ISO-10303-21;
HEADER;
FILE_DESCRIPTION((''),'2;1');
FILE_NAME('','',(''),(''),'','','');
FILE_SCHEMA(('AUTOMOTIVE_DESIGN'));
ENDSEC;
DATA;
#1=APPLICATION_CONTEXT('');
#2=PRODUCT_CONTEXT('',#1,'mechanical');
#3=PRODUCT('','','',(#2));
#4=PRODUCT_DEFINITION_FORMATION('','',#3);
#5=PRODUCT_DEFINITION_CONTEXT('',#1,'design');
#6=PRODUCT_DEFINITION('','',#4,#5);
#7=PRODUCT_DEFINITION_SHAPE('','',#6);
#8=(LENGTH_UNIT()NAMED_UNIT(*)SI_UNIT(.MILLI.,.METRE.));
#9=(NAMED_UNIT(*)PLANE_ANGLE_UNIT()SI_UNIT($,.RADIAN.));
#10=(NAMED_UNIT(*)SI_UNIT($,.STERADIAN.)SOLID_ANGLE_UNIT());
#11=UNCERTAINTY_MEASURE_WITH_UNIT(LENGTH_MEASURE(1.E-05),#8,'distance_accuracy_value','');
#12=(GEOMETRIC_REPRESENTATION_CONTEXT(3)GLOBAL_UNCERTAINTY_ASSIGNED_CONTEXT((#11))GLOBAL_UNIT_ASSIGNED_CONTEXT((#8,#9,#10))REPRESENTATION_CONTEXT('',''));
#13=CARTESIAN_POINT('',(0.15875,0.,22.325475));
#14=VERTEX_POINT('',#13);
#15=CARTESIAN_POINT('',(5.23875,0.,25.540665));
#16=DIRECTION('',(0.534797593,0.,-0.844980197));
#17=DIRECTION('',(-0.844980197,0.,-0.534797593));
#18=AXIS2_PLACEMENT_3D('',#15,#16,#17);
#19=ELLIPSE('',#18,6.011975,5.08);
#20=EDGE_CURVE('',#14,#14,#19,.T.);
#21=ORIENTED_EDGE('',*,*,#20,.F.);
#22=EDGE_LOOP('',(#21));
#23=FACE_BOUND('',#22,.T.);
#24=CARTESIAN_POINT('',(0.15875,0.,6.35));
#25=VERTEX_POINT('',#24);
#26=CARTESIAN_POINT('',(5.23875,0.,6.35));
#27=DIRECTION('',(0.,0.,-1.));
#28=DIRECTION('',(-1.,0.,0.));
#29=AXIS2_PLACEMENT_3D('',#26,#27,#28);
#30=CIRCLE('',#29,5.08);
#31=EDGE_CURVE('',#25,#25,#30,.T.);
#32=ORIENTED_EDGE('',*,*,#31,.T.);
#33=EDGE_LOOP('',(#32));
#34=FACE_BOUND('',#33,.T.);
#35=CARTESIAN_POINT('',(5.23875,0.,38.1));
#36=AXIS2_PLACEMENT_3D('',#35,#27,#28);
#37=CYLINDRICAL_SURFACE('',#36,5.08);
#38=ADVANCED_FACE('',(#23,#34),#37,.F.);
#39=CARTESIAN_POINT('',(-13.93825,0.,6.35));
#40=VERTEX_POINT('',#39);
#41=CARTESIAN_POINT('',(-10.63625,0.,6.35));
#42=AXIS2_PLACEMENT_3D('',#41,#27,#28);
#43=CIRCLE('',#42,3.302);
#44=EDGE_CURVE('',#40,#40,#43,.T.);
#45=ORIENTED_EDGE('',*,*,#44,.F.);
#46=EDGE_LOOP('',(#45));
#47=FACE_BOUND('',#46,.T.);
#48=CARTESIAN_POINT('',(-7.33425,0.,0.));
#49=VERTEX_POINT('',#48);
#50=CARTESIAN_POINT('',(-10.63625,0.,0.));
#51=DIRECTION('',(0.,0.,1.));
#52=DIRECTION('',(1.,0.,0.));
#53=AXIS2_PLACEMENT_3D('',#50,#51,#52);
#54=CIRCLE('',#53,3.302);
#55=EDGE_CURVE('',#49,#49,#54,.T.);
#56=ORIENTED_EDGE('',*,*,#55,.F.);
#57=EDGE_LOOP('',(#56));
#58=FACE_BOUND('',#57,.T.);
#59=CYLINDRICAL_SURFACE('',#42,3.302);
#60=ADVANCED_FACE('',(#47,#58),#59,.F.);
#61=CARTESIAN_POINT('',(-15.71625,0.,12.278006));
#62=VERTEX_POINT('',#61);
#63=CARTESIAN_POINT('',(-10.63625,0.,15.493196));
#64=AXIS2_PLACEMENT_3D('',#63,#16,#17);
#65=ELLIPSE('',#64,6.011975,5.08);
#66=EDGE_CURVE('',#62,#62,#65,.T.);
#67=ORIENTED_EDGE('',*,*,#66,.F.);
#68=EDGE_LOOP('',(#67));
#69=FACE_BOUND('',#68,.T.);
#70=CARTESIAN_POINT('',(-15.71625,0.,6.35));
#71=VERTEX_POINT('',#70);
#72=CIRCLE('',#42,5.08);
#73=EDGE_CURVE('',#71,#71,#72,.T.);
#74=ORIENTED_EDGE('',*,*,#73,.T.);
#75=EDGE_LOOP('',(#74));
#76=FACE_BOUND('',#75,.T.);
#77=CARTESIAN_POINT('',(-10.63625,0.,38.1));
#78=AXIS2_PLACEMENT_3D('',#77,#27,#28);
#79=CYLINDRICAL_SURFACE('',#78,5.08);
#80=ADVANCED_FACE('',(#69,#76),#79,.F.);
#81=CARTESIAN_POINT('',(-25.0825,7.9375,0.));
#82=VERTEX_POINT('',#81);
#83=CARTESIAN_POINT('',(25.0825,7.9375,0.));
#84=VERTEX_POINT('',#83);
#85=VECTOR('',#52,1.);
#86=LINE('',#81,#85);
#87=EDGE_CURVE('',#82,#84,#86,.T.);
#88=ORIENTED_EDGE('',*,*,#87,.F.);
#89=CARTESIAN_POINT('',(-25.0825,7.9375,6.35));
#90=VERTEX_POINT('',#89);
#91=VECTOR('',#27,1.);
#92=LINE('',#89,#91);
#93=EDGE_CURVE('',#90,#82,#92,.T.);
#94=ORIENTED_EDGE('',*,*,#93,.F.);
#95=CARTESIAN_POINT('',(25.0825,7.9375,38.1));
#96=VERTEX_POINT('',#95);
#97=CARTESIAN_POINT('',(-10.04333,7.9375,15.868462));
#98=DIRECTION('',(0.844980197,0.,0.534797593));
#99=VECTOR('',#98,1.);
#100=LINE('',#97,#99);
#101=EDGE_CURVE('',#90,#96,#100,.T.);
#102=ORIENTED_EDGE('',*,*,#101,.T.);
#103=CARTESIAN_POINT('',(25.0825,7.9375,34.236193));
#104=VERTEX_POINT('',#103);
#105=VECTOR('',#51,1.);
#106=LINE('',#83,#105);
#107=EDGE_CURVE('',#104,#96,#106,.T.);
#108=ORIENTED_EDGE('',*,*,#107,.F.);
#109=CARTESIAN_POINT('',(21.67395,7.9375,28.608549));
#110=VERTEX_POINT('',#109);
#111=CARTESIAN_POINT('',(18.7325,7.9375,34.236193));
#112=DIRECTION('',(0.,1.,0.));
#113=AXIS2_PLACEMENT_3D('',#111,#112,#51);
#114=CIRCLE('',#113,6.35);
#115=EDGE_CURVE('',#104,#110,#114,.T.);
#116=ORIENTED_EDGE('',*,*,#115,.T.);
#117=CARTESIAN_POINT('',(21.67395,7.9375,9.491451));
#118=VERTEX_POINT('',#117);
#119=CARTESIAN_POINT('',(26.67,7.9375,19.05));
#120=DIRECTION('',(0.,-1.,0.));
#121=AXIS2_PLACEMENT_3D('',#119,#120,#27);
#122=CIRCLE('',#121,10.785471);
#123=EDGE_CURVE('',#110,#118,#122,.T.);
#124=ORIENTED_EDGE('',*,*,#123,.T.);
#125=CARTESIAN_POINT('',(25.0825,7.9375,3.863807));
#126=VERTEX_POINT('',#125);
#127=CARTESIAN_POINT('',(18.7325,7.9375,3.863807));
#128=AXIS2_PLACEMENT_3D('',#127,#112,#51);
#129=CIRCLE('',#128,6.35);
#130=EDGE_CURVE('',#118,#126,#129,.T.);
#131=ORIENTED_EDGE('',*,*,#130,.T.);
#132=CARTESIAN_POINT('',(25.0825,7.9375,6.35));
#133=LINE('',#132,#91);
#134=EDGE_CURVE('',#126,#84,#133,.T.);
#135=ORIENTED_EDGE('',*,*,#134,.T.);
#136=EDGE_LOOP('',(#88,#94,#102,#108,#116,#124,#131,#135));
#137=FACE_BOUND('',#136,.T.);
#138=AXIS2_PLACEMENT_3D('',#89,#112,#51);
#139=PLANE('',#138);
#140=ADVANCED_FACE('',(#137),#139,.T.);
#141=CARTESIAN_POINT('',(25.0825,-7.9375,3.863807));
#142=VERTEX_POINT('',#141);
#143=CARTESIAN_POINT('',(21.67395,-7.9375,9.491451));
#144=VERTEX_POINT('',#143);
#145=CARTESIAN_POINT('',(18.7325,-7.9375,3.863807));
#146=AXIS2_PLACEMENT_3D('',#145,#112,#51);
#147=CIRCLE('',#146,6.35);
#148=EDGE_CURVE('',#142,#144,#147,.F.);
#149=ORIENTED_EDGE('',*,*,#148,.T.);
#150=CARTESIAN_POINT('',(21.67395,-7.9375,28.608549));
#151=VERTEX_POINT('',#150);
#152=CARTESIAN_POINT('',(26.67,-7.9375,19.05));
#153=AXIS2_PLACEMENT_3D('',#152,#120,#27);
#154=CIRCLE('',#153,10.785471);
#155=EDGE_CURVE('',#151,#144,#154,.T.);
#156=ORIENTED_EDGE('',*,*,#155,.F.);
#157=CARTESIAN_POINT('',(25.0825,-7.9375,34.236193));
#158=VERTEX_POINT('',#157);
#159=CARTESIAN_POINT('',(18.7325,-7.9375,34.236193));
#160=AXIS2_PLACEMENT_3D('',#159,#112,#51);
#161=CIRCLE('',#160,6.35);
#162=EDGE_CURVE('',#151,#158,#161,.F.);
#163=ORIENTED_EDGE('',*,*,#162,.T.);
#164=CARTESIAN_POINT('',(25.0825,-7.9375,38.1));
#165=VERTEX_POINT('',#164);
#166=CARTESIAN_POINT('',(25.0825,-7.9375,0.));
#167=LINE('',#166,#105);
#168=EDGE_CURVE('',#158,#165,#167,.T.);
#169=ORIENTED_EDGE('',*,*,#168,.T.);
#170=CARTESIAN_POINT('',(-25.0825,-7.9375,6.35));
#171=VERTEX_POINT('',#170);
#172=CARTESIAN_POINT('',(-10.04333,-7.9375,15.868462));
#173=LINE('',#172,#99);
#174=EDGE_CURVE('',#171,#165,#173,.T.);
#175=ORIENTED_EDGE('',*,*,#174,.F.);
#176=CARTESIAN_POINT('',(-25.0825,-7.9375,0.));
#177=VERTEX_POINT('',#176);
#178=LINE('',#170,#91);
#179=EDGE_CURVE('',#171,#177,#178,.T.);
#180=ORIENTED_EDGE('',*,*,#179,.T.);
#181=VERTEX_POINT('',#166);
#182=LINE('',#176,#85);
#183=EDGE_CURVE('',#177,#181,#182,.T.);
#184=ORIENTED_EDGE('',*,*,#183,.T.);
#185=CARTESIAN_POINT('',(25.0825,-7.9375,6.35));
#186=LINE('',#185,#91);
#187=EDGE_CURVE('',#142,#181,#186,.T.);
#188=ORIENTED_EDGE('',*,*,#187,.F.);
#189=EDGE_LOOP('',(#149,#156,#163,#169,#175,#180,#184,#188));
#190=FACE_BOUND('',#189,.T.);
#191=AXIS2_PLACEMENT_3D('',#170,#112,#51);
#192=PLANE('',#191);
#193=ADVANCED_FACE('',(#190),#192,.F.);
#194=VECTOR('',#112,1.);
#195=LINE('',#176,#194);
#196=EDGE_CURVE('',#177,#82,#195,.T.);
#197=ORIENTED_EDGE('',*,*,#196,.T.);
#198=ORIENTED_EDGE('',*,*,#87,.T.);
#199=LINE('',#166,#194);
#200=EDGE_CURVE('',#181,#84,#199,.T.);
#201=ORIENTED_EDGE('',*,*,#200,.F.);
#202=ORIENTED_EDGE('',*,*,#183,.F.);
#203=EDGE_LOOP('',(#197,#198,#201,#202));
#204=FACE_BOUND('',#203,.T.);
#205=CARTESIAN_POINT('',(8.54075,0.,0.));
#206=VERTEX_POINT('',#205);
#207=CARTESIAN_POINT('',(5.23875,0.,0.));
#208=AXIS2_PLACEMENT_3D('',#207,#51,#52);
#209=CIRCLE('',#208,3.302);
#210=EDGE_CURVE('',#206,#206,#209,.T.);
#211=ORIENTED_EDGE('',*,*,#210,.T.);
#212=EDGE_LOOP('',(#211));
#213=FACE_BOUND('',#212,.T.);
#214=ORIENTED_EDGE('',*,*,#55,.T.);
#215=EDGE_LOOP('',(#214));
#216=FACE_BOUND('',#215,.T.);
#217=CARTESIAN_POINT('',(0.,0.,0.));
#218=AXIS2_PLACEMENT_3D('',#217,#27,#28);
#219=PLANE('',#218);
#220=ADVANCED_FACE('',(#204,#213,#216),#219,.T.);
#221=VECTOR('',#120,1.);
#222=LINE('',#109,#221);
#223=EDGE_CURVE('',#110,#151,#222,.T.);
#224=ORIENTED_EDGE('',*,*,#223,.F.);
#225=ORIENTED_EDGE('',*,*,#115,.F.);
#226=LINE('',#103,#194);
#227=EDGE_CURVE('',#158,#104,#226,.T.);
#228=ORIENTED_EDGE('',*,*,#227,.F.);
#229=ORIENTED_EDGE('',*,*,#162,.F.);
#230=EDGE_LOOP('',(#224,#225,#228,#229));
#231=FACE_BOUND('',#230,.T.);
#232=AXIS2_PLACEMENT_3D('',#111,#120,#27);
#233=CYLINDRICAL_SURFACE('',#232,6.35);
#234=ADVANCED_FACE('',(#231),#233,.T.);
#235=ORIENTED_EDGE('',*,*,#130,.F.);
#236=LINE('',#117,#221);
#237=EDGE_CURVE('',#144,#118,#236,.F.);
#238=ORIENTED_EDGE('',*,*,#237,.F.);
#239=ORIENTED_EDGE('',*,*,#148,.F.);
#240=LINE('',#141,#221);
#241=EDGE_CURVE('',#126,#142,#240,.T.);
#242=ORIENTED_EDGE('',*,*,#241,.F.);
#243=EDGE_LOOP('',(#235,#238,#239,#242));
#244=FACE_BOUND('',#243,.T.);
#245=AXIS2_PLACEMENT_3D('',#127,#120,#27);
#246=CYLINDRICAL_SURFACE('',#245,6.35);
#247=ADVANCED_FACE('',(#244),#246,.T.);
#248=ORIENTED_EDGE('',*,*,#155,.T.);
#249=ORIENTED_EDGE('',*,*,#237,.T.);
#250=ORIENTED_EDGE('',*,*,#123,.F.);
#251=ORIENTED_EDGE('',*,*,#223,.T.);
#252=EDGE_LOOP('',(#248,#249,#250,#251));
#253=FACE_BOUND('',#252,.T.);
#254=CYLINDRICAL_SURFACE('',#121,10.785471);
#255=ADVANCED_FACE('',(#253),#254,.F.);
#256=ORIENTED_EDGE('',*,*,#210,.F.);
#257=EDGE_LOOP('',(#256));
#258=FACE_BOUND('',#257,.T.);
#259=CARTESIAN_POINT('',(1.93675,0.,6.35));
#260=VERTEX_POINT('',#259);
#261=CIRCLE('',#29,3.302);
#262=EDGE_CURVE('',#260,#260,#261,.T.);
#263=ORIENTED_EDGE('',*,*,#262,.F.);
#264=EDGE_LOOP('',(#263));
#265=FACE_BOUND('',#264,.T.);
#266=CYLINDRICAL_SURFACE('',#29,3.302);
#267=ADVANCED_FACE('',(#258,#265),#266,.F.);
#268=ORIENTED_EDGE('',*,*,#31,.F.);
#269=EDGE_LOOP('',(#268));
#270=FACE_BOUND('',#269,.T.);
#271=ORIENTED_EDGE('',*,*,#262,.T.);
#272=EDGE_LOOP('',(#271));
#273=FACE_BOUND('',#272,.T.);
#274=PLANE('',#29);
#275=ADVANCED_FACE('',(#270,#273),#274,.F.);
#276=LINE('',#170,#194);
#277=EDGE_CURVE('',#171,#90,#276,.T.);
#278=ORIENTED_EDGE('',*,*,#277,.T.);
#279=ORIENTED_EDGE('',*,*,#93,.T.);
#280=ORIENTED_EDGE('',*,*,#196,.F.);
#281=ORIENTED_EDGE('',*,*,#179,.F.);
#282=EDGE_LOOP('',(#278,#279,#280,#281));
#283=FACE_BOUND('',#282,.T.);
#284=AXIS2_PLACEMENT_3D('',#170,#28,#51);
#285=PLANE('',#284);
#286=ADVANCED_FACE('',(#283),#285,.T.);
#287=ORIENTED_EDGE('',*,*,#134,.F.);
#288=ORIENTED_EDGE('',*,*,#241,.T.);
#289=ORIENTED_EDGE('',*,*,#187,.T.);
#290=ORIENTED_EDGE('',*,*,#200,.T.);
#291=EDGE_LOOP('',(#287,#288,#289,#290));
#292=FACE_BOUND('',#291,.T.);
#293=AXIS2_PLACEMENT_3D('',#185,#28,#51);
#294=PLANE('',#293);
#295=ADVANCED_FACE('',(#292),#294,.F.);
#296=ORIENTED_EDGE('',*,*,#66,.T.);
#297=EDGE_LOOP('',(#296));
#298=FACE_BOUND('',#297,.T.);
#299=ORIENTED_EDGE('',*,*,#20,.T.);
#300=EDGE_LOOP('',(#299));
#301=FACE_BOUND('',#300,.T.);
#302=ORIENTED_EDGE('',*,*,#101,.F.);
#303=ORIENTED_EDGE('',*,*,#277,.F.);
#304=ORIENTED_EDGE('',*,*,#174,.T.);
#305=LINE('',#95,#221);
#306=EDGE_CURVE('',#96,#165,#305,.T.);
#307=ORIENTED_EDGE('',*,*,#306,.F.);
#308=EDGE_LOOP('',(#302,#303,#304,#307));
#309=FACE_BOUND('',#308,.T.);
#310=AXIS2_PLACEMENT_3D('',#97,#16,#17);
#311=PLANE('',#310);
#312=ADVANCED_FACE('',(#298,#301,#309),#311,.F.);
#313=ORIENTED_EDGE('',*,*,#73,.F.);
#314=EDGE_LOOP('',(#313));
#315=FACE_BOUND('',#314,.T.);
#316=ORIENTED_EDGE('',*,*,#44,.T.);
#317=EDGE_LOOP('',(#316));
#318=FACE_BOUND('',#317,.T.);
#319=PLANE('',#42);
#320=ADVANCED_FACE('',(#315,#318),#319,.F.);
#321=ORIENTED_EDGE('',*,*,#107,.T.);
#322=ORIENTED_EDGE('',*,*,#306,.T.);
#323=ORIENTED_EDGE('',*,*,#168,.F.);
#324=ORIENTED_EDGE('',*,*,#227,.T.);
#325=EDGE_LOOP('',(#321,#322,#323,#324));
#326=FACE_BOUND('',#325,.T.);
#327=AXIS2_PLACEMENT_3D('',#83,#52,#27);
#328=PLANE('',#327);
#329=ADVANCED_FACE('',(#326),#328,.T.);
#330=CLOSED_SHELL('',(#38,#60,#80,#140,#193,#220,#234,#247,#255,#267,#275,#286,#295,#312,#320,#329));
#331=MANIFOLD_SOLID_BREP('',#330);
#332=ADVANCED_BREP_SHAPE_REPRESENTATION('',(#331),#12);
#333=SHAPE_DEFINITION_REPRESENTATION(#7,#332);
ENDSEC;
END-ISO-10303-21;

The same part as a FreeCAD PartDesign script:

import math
import FreeCAD as App
import Part
import Sketcher
from FreeCAD import Vector
Q = App.Units.Quantity


def edges_at(feature, points):
    """Names of the edges that pass closest to the given points."""
    edges = feature.Shape.Edges
    near = lambda p: min(range(len(edges)), key=lambda i: edges[i].distToShape(Part.Vertex(*p))[0])
    return sorted({f"Edge{near(p) + 1}" for p in points})


def add_polygon(sketch, points):
    """Adds a closed chain of lines whose ends are joined by coincident constraints."""
    first, n = sketch.GeometryCount, len(points)
    for a, b in zip(points, points[1:] + points[:1]):
        sketch.addGeometry(Part.LineSegment(App.Vector(*a, 0), App.Vector(*b, 0)), False)
    for i in range(n):
        sketch.addConstraint(Sketcher.Constraint("Coincident", first + i, 2, first + (i + 1) % n, 1))

doc = App.newDocument("Part")
body = doc.addObject("PartDesign::Body", "Body")

# Sketch on XY plane
sketch1 = body.newObject("Sketcher::SketchObject", "Sketch")
sketch1.AttachmentSupport = (doc.getObject("XY_Plane"), [""])
sketch1.MapMode = "FlatFace"
add_polygon(sketch1, [(-25.0825, 7.9375), (-25.0825, -7.9375), (25.0825, -7.9375), (25.0825, 7.9375)])  # lines 0-3
sketch1.addGeometry(Part.Circle(Vector(-10.63625, 0, 0), Vector(0, 0, 1), 3.302), False)  # 4
sketch1.addGeometry(Part.Circle(Vector(5.23875, 0, 0), Vector(0, 0, 1), 3.302), False)  # 5
sketch1.addConstraint([
    Sketcher.Constraint("Vertical", 0),
    Sketcher.Constraint("Horizontal", 1),
    Sketcher.Constraint("Vertical", 2),
    Sketcher.Constraint("Horizontal", 3),
    Sketcher.Constraint("Equal", 4, 5),
    Sketcher.Constraint("Symmetric", 0, 2, 2, 2, -1, 1),
    Sketcher.Constraint("PointOnObject", 4, 3, -1),
    Sketcher.Constraint("PointOnObject", 5, 3, -1),
    Sketcher.Constraint("Diameter", 4, Q("0.26 in")),
    Sketcher.Constraint("DistanceX", 1, 1, 1, 2, Q("1.975 in")),
    Sketcher.Constraint("DistanceY", 0, 2, 0, 1, Q("0.625 in")),
    Sketcher.Constraint("DistanceX", 4, 3, 5, 3, Q("0.625 in")),
    Sketcher.Constraint("DistanceX", 5, 3, 1, 2, Q("0.78125 in")),
])
pad1 = body.newObject("PartDesign::Pad", "Pad")
pad1.Profile = sketch1
pad1.Length = Q("0.25 in")

# Sketch on XZ plane
sketch2 = body.newObject("Sketcher::SketchObject", "Sketch001")
sketch2.AttachmentSupport = (doc.getObject("XZ_Plane"), [""])
sketch2.MapMode = "FlatFace"
sketch2.AttachmentOffset = App.Placement(Vector(0, 0, 0.3125 * 25.4), App.Rotation())
sketch2.addGeometry([
    Part.LineSegment(Vector(-25.0825, 6.35, 0), Vector(25.0825, 6.35, 0)),  # 0
    Part.LineSegment(Vector(25.0825, 6.35, 0), Vector(25.0825, 8.382, 0)),  # 1
    Part.ArcOfCircle(Part.Circle(Vector(26.67, 19.05, 0), Vector(0, 0, 1), 10.785471), math.radians(98.464046), math.radians(261.535954)),  # 2
    Part.LineSegment(Vector(25.0825, 29.718, 0), Vector(25.0825, 38.1, 0)),  # 3
    Part.LineSegment(Vector(25.0825, 38.1, 0), Vector(-25.0825, 6.35, 0)),  # 4
], False)
sketch2.addConstraint([
    Sketcher.Constraint("Coincident", 0, 2, 1, 1),
    Sketcher.Constraint("Coincident", 1, 2, 2, 2),
    Sketcher.Constraint("Coincident", 2, 1, 3, 1),
    Sketcher.Constraint("Coincident", 3, 2, 4, 1),
    Sketcher.Constraint("Coincident", 4, 2, 0, 1),
    Sketcher.Constraint("Horizontal", 0),
    Sketcher.Constraint("Vertical", 1),
    Sketcher.Constraint("Vertical", 3),
    Sketcher.Constraint("Vertical", 1, 2, 2, 1),
    Sketcher.Constraint("DistanceY", 1, 1, 1, 2, Q("0.08 in")),
    Sketcher.Constraint("DistanceY", 3, 1, 3, 2, Q("0.33 in")),
    Sketcher.Constraint("DistanceY", -1, 1, 3, 2, Q("1.5 in")),
    Sketcher.Constraint("DistanceY", 0, 2, 2, 3, Q("0.5 in")),
    Sketcher.Constraint("DistanceX", 0, 1, 0, 2, Q("1.975 in")),
    Sketcher.Constraint("DistanceX", -1, 1, 2, 3, Q("1.05 in")),
    Sketcher.Constraint("Radius", 2, 10.785471),
])
pad2 = body.newObject("PartDesign::Pad", "Pad001")
pad2.Profile = sketch2
pad2.Length = Q("0.625 in")
pad2.Reversed = True
doc.recompute()

fillet = body.newObject("PartDesign::Fillet", "Fillet")
fillet.Base = (pad2, edges_at(pad2, [(25.082, 0, 8.382), (25.082, 0, 29.718)]))
fillet.Radius = Q("0.25 in")

# Sketch on XY plane
sketch3 = body.newObject("Sketcher::SketchObject", "Sketch002")
sketch3.AttachmentSupport = (doc.getObject("XY_Plane"), [""])
sketch3.MapMode = "FlatFace"
sketch3.addGeometry([
    Part.Circle(Vector(5.23875, 0, 0), Vector(0, 0, 1), 3.302),
    Part.Circle(Vector(-10.63625, 0, 0), Vector(0, 0, 1), 3.302),
], False)
sketch3.addConstraint([
    Sketcher.Constraint("Equal", 0, 1),
    Sketcher.Constraint("PointOnObject", 0, 3, -1),
    Sketcher.Constraint("PointOnObject", 1, 3, -1),
    Sketcher.Constraint("Diameter", 0, Q("0.26 in")),
    Sketcher.Constraint("DistanceX", 1, 3, 0, 3, Q("0.625 in")),
    Sketcher.Constraint("DistanceX", -1, 1, 0, 3, 5.23875),
])
pocket1 = body.newObject("PartDesign::Pocket", "Pocket")
pocket1.Profile = sketch3
pocket1.Type = "ThroughAll"
pocket1.Reversed = True

# Sketch on XY plane
sketch4 = body.newObject("Sketcher::SketchObject", "Sketch003")
sketch4.AttachmentSupport = (doc.getObject("XY_Plane"), [""])
sketch4.MapMode = "FlatFace"
sketch4.AttachmentOffset = App.Placement(Vector(0, 0, 0.25 * 25.4), App.Rotation())
sketch4.addGeometry([
    Part.Circle(Vector(-10.63625, 0, 0), Vector(0, 0, 1), 5.08),
    Part.Circle(Vector(5.23875, 0, 0), Vector(0, 0, 1), 5.08),
], False)
sketch4.addConstraint([
    Sketcher.Constraint("Equal", 0, 1),
    Sketcher.Constraint("PointOnObject", 0, 3, -1),
    Sketcher.Constraint("PointOnObject", 1, 3, -1),
    Sketcher.Constraint("Diameter", 0, Q("0.4 in")),
    Sketcher.Constraint("DistanceX", 0, 3, 1, 3, Q("0.625 in")),
    Sketcher.Constraint("DistanceX", 0, 3, -1, 1, 10.63625),
])
pocket2 = body.newObject("PartDesign::Pocket", "Pocket001")
pocket2.Profile = sketch4
pocket2.Type = "ThroughAll"
pocket2.Reversed = True

doc.recompute()
